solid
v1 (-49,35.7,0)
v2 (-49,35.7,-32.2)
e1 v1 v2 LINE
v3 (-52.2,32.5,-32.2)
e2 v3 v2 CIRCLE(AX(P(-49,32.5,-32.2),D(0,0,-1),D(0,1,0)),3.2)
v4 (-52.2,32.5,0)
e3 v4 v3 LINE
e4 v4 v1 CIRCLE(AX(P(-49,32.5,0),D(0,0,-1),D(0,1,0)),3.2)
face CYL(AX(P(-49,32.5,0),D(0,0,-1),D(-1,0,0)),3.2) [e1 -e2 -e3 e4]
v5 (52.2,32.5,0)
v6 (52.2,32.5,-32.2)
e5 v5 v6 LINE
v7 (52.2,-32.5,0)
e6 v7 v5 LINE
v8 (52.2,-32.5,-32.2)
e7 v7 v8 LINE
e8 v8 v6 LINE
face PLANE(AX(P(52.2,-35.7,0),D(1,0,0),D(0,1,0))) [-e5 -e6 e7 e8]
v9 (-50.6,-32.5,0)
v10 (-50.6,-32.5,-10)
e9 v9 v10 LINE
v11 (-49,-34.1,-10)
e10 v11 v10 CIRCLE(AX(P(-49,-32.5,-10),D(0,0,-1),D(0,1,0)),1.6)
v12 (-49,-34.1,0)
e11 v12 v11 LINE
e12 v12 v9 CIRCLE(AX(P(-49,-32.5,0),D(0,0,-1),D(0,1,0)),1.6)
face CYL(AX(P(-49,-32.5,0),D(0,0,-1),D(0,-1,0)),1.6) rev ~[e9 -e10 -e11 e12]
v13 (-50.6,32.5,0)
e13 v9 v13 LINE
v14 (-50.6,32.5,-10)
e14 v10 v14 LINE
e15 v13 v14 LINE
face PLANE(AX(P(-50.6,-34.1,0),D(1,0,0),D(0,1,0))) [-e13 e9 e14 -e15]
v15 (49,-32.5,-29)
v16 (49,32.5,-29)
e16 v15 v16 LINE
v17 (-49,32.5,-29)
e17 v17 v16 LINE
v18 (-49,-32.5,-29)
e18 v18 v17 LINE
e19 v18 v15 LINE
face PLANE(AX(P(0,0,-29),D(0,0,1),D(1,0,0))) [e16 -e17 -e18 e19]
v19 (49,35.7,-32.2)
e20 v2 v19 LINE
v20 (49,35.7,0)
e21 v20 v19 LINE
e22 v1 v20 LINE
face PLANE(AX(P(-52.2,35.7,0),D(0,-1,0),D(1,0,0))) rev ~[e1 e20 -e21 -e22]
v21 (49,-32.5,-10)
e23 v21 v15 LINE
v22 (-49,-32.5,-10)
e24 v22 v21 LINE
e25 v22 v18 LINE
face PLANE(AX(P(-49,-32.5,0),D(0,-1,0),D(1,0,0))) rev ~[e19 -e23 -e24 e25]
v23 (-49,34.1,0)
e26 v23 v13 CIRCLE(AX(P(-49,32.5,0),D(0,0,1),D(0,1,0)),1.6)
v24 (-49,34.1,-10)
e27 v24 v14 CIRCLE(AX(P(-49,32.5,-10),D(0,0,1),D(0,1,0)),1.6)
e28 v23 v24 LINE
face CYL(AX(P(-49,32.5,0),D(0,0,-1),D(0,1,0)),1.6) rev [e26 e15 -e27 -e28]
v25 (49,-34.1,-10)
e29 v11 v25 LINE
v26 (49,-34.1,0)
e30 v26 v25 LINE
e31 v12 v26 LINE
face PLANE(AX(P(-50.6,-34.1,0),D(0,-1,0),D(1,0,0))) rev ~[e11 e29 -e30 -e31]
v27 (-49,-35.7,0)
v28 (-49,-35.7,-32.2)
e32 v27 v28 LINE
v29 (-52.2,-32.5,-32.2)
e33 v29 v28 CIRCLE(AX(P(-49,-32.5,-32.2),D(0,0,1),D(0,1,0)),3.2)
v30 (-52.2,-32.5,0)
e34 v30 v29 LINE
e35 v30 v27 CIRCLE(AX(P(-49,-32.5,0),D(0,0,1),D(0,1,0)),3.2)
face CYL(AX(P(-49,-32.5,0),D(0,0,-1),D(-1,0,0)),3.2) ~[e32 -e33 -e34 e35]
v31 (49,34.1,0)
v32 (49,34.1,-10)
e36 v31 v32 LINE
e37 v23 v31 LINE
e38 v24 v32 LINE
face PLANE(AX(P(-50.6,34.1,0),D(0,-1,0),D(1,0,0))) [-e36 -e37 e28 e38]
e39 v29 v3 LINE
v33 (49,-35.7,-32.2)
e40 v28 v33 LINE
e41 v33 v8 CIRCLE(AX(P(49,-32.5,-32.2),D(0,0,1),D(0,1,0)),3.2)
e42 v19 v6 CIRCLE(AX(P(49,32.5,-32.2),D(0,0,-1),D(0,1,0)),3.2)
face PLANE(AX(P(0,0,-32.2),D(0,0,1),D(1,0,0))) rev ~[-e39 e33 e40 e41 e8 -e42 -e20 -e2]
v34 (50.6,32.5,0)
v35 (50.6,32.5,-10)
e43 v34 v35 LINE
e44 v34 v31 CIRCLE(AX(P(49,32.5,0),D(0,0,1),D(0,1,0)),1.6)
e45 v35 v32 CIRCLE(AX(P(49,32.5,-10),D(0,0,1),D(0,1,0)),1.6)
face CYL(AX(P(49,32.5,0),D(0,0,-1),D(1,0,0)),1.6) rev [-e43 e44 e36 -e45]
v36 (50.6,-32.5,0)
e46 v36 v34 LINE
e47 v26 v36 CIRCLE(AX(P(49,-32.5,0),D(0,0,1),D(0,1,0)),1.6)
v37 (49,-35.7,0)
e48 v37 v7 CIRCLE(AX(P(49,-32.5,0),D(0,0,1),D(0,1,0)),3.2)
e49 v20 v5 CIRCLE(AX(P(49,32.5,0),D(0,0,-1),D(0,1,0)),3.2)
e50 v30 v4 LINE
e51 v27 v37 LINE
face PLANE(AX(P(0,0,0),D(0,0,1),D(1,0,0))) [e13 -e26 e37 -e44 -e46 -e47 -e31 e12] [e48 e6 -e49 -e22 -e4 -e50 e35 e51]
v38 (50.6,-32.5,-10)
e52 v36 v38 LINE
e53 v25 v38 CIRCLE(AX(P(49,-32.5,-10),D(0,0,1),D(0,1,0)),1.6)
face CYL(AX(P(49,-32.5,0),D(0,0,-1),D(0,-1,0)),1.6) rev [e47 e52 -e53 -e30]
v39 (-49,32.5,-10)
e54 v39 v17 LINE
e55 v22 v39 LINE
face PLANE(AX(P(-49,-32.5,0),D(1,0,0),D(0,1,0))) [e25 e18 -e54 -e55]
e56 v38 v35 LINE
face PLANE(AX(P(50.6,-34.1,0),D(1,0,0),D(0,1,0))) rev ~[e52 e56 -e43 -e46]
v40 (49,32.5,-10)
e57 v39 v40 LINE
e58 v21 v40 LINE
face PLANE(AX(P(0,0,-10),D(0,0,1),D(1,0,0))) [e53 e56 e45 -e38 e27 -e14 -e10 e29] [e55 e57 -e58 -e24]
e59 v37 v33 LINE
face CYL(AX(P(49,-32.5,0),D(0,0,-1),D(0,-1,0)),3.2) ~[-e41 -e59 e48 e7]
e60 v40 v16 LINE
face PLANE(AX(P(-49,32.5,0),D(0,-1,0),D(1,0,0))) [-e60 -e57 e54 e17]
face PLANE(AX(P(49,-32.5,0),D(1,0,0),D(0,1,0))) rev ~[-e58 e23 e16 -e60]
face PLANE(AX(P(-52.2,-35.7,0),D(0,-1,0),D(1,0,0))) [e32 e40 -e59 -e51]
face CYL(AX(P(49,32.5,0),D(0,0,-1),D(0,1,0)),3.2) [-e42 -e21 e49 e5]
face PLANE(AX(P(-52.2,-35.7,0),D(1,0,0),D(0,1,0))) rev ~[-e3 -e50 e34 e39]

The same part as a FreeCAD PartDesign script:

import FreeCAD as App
import Part
import Sketcher
Q = App.Units.Quantity


def edges_at(feature, points):
    """Names of the edges that pass closest to the given points."""
    edges = feature.Shape.Edges
    near = lambda p: min(range(len(edges)), key=lambda i: edges[i].distToShape(Part.Vertex(*p))[0])
    return sorted({f"Edge{near(p) + 1}" for p in points})


def add_polygon(sketch, points):
    """Adds a closed chain of lines whose ends are joined by coincident constraints."""
    first, n = sketch.GeometryCount, len(points)
    for a, b in zip(points, points[1:] + points[:1]):
        sketch.addGeometry(Part.LineSegment(App.Vector(*a, 0), App.Vector(*b, 0)), False)
    for i in range(n):
        sketch.addConstraint(Sketcher.Constraint("Coincident", first + i, 2, first + (i + 1) % n, 1))

doc = App.newDocument("Part")
params = doc.addObject("Spreadsheet::Sheet", "Params")
for row, (alias, value) in enumerate([
    ("sketch1_width", "104.4 mm"),
    ("sketch1_height", "71.4 mm"),
    ("pad1_length", "32.2 mm"),
    ("sketch2_width", "101.2 mm"),
    ("sketch2_height", "68.2 mm"),
    ("pocket1_length", "10 mm"),
    ("sketch3_width", "98 mm"),
    ("sketch3_height", "65 mm"),
    ("pocket2_length", "29 mm"),
    ("fillet_radius", "3.2 mm"),
    ("fillet2_radius", "1.6 mm"),
], start=1):
    params.set(f"A{row}", alias)
    params.set(f"B{row}", "=" + value)
    params.setAlias(f"B{row}", alias)

body = doc.addObject("PartDesign::Body", "Body")

# Sketch on XY plane
sketch1 = doc.addObject("Sketcher::SketchObject", "Sketch")
body.addObject(sketch1)
sketch1.AttachmentSupport = (doc.XY_Plane, [""])
sketch1.MapMode = "FlatFace"
add_polygon(sketch1, [(-52, 36), (-52, -36), (52, -36), (52, 36)])  # lines 0-3
sketch1.addConstraint([
    Sketcher.Constraint("Vertical", 0),
    Sketcher.Constraint("Horizontal", 1),
    Sketcher.Constraint("Vertical", 2),
    Sketcher.Constraint("Horizontal", 3),
    Sketcher.Constraint("Symmetric", 0, 2, 2, 2, -1, 1),
    Sketcher.Constraint("DistanceX", 1, 1, 1, 2, Q("104.4 mm")),
    Sketcher.Constraint("DistanceY", 0, 2, 0, 1, Q("71.4 mm")),
])
sketch1.setExpression("Constraints[9]", "Params.sketch1_width")
sketch1.setExpression("Constraints[10]", "Params.sketch1_height")
pad1 = doc.addObject("PartDesign::Pad", "Pad")
body.addObject(pad1)
pad1.Profile = sketch1
pad1.setExpression("Length", "Params.pad1_length")
pad1.Reversed = True

# Sketch on XY plane
sketch2 = doc.addObject("Sketcher::SketchObject", "Sketch001")
body.addObject(sketch2)
sketch2.AttachmentSupport = (doc.XY_Plane, [""])
sketch2.MapMode = "FlatFace"
add_polygon(sketch2, [(-51, 34), (-51, -34), (51, -34), (51, 34)])  # lines 0-3
sketch2.addConstraint([
    Sketcher.Constraint("Vertical", 0),
    Sketcher.Constraint("Horizontal", 1),
    Sketcher.Constraint("Vertical", 2),
    Sketcher.Constraint("Horizontal", 3),
    Sketcher.Constraint("Symmetric", 0, 2, 2, 2, -1, 1),
    Sketcher.Constraint("DistanceX", 1, 1, 1, 2, Q("101.2 mm")),
    Sketcher.Constraint("DistanceY", 0, 2, 0, 1, Q("68.2 mm")),
])
sketch2.setExpression("Constraints[9]", "Params.sketch2_width")
sketch2.setExpression("Constraints[10]", "Params.sketch2_height")
pocket1 = doc.addObject("PartDesign::Pocket", "Pocket")
body.addObject(pocket1)
pocket1.Profile = sketch2
pocket1.setExpression("Length", "Params.pocket1_length")

# Sketch on XY plane
sketch3 = doc.addObject("Sketcher::SketchObject", "Sketch002")
body.addObject(sketch3)
sketch3.AttachmentSupport = (doc.XY_Plane, [""])
sketch3.MapMode = "FlatFace"
add_polygon(sketch3, [(-49, 32), (-49, -32), (49, -32), (49, 32)])  # lines 0-3
sketch3.addConstraint([
    Sketcher.Constraint("Vertical", 0),
    Sketcher.Constraint("Horizontal", 1),
    Sketcher.Constraint("Vertical", 2),
    Sketcher.Constraint("Horizontal", 3),
    Sketcher.Constraint("Symmetric", 0, 2, 2, 2, -1, 1),
    Sketcher.Constraint("DistanceX", 1, 1, 1, 2, Q("98 mm")),
    Sketcher.Constraint("DistanceY", 0, 2, 0, 1, Q("65 mm")),
])
sketch3.setExpression("Constraints[9]", "Params.sketch3_width")
sketch3.setExpression("Constraints[10]", "Params.sketch3_height")
pocket2 = doc.addObject("PartDesign::Pocket", "Pocket001")
body.addObject(pocket2)
pocket2.Profile = sketch3
pocket2.setExpression("Length", "Params.pocket2_length")
doc.recompute()

fillet = doc.addObject("PartDesign::Fillet", "Fillet")
body.addObject(fillet)
fillet.Base = (pocket2, edges_at(pocket2, [
    (-52.2, -35.7, -16.1),
    (52.2, -35.7, -16.1),
    (52.2, 35.7, -16.1),
    (-52.2, 35.7, -16.1),
]))
fillet.setExpression("Radius", "Params.fillet_radius")
doc.recompute()

fillet2 = doc.addObject("PartDesign::Fillet", "Fillet001")
body.addObject(fillet2)
fillet2.Base = (fillet, edges_at(fillet, [
    (-50.6, 34.1, -5),
    (-50.6, -34.1, -5),
    (50.6, 34.1, -5),
    (50.6, -34.1, -5),
]))
fillet2.setExpression("Radius", "Params.fillet2_radius")

doc.recompute()
